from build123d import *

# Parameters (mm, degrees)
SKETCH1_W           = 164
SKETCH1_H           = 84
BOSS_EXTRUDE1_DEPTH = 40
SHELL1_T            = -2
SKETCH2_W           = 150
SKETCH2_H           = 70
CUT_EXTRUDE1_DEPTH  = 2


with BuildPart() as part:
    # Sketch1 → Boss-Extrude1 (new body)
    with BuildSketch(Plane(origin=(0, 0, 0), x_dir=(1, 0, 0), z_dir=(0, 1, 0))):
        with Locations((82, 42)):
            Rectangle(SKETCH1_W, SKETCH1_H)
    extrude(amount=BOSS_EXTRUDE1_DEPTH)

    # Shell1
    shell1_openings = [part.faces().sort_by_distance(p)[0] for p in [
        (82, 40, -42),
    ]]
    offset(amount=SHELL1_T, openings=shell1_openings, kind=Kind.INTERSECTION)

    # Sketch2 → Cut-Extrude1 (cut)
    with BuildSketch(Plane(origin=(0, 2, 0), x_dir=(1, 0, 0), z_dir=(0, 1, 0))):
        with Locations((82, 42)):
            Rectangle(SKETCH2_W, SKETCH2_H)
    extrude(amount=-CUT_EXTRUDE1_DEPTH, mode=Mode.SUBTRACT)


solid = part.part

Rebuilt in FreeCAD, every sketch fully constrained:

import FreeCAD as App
import Part
import Sketcher


def faces_at(feature, points):
    """Names of the faces that lie closest to the given points."""
    faces = feature.Shape.Faces
    near = lambda p: min(range(len(faces)), key=lambda i: faces[i].distToShape(Part.Vertex(*p))[0])
    return sorted({f"Face{near(p) + 1}" for p in points})

doc = App.newDocument("Part")
body = doc.addObject("PartDesign::Body", "Body")

# Sketch on XZ plane
sketch1 = body.newObject("Sketcher::SketchObject", "Sketch")
sketch1.AttachmentSupport = (doc.getObject("XZ_Plane"), [""])
sketch1.MapMode = "FlatFace"
sketch1.addGeometry([
    Part.LineSegment(App.Vector(0, -84, 0), App.Vector(0, 0, 0)),
    Part.LineSegment(App.Vector(0, 0, 0), App.Vector(164, 0, 0)),
    Part.LineSegment(App.Vector(164, 0, 0), App.Vector(164, -84, 0)),
    Part.LineSegment(App.Vector(164, -84, 0), App.Vector(0, -84, 0)),
], False)
sketch1.addConstraint([
    Sketcher.Constraint("Coincident", 0, 2, 1, 1),
    Sketcher.Constraint("Coincident", 1, 2, 2, 1),
    Sketcher.Constraint("Coincident", 2, 2, 3, 1),
    Sketcher.Constraint("Coincident", 3, 2, 0, 1),
    Sketcher.Constraint("Vertical", 0),
    Sketcher.Constraint("Horizontal", 1),
    Sketcher.Constraint("Vertical", 2),
    Sketcher.Constraint("Horizontal", 3),
    Sketcher.Constraint("Coincident", 0, 2, -1, 1),
    Sketcher.Constraint("DistanceX", 1, 1, 1, 2, 164.0),
    Sketcher.Constraint("DistanceY", 0, 1, 0, 2, 84.0),
])
pad1 = body.newObject("PartDesign::Pad", "Pad")
pad1.Profile = sketch1
pad1.Length = 40
pad1.Reversed = True
doc.recompute()

thickness = body.newObject("PartDesign::Thickness", "Thickness")
thickness.Base = (pad1, faces_at(pad1, [(82, 40, -42)]))
thickness.Value = 2
thickness.Reversed = True
thickness.Join = "Intersection"

# Sketch on XZ plane
sketch2 = body.newObject("Sketcher::SketchObject", "Sketch001")
sketch2.AttachmentSupport = (doc.getObject("XZ_Plane"), [""])
sketch2.MapMode = "FlatFace"
sketch2.AttachmentOffset = App.Placement(App.Vector(0, 0, -2), App.Rotation())
sketch2.addGeometry([
    Part.LineSegment(App.Vector(7, -77, 0), App.Vector(7, -7, 0)),
    Part.LineSegment(App.Vector(7, -7, 0), App.Vector(157, -7, 0)),
    Part.LineSegment(App.Vector(157, -7, 0), App.Vector(157, -77, 0)),
    Part.LineSegment(App.Vector(157, -77, 0), App.Vector(7, -77, 0)),
], False)
sketch2.addConstraint([
    Sketcher.Constraint("Coincident", 0, 2, 1, 1),
    Sketcher.Constraint("Coincident", 1, 2, 2, 1),
    Sketcher.Constraint("Coincident", 2, 2, 3, 1),
    Sketcher.Constraint("Coincident", 3, 2, 0, 1),
    Sketcher.Constraint("Vertical", 0),
    Sketcher.Constraint("Horizontal", 1),
    Sketcher.Constraint("Vertical", 2),
    Sketcher.Constraint("Horizontal", 3),
    Sketcher.Constraint("DistanceX", 1, 1, 1, 2, 150.0),
    Sketcher.Constraint("DistanceY", 0, 1, 0, 2, 70.0),
    Sketcher.Constraint("DistanceX", -1, 1, 0, 2, 7.0),
    Sketcher.Constraint("DistanceY", 0, 2, -1, 1, 7.0),
])
pocket1 = body.newObject("PartDesign::Pocket", "Pocket")
pocket1.Profile = sketch2
pocket1.Length = 2
pocket1.Reversed = True

doc.recompute()
